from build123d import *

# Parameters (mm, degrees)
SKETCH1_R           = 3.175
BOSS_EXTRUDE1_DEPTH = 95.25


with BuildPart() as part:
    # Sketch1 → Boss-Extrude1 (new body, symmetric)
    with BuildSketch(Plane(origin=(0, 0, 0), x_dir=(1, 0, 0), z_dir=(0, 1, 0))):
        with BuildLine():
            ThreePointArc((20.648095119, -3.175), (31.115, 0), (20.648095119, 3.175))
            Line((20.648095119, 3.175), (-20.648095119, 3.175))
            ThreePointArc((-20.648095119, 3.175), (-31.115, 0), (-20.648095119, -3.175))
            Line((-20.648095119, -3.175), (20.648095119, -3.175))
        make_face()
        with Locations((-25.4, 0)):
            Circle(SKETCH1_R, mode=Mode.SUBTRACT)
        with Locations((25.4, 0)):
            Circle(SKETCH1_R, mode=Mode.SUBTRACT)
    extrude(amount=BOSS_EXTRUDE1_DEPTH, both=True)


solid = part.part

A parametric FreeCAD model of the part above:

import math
import FreeCAD as App
import Part
import Sketcher

V = App.Vector
Q = App.Units.Quantity

doc = App.newDocument("Part")
params = doc.addObject("Spreadsheet::Sheet", "Params")
for row, (alias, value) in enumerate([
    ("sketch1_diameter", "0.25 in"),
    ("sketch1_radius", "0.225 in"),
    ("pad1_length", "7.5 in"),
], start=1):
    params.set(f"A{row}", alias)
    params.set(f"B{row}", "=" + value)
    params.setAlias(f"B{row}", alias)

body = doc.addObject("PartDesign::Body", "Body")

# Sketch on XZ plane
sketch1 = body.newObject("Sketcher::SketchObject", "Sketch")
sketch1.AttachmentSupport = (doc.getObject("XZ_Plane"), [""])
sketch1.MapMode = "FlatFace"
sketch1.addGeometry([
    Part.ArcOfCircle(Part.Circle(V(25.4, 0, 0), V(0, 0, 1), 5.7), math.radians(-146), math.radians(146)),  # 0
    Part.LineSegment(V(20.6, -3.2, 0), V(-20.6, -3.2, 0)),  # 1
    Part.ArcOfCircle(Part.Circle(V(-25.4, 0, 0), V(0, 0, 1), 5.7), math.radians(34), math.radians(326)),  # 2
    Part.LineSegment(V(-20.6, 3.2, 0), V(20.6, 3.2, 0)),  # 3
    Part.Circle(V(-25.4, 0, 0), V(0, 0, 1), 3.2),  # 4
    Part.Circle(V(25.4, 0, 0), V(0, 0, 1), 3.2),  # 5
], False)
sketch1.addConstraint([
    Sketcher.Constraint("Coincident", 0, 1, 1, 1),
    Sketcher.Constraint("Coincident", 1, 2, 2, 2),
    Sketcher.Constraint("Coincident", 2, 1, 3, 1),
    Sketcher.Constraint("Coincident", 3, 2, 0, 2),
    Sketcher.Constraint("Horizontal", 1),
    Sketcher.Constraint("Horizontal", 3),
    Sketcher.Constraint("Coincident", 4, 3, 2, 3),
    Sketcher.Constraint("Coincident", 5, 3, 0, 3),
    Sketcher.Constraint("Equal", 0, 2),
    Sketcher.Constraint("Equal", 4, 5),
    Sketcher.Constraint("Symmetric", 0, 3, 2, 3, -1, 1),
    Sketcher.Constraint("Symmetric", 1, 2, 2, 1, -1),
    Sketcher.Constraint("Diameter", 4, Q("0.25 in")),
    Sketcher.Constraint("DistanceX", -1, 1, 0, 3, Q("1 in")),
    Sketcher.Constraint("Radius", 0, Q("0.225 in")),
    Sketcher.Constraint("DistanceY", 1, 2, 2, 1, Q("0.25 in")),
])
sketch1.setExpression("Constraints[12]", "Params.sketch1_diameter")
sketch1.setExpression("Constraints[14]", "Params.sketch1_radius")
pad1 = body.newObject("PartDesign::Pad", "Pad")
pad1.Profile = sketch1
pad1.setExpression("Length", "Params.pad1_length")
pad1.Midplane = True

doc.recompute()
